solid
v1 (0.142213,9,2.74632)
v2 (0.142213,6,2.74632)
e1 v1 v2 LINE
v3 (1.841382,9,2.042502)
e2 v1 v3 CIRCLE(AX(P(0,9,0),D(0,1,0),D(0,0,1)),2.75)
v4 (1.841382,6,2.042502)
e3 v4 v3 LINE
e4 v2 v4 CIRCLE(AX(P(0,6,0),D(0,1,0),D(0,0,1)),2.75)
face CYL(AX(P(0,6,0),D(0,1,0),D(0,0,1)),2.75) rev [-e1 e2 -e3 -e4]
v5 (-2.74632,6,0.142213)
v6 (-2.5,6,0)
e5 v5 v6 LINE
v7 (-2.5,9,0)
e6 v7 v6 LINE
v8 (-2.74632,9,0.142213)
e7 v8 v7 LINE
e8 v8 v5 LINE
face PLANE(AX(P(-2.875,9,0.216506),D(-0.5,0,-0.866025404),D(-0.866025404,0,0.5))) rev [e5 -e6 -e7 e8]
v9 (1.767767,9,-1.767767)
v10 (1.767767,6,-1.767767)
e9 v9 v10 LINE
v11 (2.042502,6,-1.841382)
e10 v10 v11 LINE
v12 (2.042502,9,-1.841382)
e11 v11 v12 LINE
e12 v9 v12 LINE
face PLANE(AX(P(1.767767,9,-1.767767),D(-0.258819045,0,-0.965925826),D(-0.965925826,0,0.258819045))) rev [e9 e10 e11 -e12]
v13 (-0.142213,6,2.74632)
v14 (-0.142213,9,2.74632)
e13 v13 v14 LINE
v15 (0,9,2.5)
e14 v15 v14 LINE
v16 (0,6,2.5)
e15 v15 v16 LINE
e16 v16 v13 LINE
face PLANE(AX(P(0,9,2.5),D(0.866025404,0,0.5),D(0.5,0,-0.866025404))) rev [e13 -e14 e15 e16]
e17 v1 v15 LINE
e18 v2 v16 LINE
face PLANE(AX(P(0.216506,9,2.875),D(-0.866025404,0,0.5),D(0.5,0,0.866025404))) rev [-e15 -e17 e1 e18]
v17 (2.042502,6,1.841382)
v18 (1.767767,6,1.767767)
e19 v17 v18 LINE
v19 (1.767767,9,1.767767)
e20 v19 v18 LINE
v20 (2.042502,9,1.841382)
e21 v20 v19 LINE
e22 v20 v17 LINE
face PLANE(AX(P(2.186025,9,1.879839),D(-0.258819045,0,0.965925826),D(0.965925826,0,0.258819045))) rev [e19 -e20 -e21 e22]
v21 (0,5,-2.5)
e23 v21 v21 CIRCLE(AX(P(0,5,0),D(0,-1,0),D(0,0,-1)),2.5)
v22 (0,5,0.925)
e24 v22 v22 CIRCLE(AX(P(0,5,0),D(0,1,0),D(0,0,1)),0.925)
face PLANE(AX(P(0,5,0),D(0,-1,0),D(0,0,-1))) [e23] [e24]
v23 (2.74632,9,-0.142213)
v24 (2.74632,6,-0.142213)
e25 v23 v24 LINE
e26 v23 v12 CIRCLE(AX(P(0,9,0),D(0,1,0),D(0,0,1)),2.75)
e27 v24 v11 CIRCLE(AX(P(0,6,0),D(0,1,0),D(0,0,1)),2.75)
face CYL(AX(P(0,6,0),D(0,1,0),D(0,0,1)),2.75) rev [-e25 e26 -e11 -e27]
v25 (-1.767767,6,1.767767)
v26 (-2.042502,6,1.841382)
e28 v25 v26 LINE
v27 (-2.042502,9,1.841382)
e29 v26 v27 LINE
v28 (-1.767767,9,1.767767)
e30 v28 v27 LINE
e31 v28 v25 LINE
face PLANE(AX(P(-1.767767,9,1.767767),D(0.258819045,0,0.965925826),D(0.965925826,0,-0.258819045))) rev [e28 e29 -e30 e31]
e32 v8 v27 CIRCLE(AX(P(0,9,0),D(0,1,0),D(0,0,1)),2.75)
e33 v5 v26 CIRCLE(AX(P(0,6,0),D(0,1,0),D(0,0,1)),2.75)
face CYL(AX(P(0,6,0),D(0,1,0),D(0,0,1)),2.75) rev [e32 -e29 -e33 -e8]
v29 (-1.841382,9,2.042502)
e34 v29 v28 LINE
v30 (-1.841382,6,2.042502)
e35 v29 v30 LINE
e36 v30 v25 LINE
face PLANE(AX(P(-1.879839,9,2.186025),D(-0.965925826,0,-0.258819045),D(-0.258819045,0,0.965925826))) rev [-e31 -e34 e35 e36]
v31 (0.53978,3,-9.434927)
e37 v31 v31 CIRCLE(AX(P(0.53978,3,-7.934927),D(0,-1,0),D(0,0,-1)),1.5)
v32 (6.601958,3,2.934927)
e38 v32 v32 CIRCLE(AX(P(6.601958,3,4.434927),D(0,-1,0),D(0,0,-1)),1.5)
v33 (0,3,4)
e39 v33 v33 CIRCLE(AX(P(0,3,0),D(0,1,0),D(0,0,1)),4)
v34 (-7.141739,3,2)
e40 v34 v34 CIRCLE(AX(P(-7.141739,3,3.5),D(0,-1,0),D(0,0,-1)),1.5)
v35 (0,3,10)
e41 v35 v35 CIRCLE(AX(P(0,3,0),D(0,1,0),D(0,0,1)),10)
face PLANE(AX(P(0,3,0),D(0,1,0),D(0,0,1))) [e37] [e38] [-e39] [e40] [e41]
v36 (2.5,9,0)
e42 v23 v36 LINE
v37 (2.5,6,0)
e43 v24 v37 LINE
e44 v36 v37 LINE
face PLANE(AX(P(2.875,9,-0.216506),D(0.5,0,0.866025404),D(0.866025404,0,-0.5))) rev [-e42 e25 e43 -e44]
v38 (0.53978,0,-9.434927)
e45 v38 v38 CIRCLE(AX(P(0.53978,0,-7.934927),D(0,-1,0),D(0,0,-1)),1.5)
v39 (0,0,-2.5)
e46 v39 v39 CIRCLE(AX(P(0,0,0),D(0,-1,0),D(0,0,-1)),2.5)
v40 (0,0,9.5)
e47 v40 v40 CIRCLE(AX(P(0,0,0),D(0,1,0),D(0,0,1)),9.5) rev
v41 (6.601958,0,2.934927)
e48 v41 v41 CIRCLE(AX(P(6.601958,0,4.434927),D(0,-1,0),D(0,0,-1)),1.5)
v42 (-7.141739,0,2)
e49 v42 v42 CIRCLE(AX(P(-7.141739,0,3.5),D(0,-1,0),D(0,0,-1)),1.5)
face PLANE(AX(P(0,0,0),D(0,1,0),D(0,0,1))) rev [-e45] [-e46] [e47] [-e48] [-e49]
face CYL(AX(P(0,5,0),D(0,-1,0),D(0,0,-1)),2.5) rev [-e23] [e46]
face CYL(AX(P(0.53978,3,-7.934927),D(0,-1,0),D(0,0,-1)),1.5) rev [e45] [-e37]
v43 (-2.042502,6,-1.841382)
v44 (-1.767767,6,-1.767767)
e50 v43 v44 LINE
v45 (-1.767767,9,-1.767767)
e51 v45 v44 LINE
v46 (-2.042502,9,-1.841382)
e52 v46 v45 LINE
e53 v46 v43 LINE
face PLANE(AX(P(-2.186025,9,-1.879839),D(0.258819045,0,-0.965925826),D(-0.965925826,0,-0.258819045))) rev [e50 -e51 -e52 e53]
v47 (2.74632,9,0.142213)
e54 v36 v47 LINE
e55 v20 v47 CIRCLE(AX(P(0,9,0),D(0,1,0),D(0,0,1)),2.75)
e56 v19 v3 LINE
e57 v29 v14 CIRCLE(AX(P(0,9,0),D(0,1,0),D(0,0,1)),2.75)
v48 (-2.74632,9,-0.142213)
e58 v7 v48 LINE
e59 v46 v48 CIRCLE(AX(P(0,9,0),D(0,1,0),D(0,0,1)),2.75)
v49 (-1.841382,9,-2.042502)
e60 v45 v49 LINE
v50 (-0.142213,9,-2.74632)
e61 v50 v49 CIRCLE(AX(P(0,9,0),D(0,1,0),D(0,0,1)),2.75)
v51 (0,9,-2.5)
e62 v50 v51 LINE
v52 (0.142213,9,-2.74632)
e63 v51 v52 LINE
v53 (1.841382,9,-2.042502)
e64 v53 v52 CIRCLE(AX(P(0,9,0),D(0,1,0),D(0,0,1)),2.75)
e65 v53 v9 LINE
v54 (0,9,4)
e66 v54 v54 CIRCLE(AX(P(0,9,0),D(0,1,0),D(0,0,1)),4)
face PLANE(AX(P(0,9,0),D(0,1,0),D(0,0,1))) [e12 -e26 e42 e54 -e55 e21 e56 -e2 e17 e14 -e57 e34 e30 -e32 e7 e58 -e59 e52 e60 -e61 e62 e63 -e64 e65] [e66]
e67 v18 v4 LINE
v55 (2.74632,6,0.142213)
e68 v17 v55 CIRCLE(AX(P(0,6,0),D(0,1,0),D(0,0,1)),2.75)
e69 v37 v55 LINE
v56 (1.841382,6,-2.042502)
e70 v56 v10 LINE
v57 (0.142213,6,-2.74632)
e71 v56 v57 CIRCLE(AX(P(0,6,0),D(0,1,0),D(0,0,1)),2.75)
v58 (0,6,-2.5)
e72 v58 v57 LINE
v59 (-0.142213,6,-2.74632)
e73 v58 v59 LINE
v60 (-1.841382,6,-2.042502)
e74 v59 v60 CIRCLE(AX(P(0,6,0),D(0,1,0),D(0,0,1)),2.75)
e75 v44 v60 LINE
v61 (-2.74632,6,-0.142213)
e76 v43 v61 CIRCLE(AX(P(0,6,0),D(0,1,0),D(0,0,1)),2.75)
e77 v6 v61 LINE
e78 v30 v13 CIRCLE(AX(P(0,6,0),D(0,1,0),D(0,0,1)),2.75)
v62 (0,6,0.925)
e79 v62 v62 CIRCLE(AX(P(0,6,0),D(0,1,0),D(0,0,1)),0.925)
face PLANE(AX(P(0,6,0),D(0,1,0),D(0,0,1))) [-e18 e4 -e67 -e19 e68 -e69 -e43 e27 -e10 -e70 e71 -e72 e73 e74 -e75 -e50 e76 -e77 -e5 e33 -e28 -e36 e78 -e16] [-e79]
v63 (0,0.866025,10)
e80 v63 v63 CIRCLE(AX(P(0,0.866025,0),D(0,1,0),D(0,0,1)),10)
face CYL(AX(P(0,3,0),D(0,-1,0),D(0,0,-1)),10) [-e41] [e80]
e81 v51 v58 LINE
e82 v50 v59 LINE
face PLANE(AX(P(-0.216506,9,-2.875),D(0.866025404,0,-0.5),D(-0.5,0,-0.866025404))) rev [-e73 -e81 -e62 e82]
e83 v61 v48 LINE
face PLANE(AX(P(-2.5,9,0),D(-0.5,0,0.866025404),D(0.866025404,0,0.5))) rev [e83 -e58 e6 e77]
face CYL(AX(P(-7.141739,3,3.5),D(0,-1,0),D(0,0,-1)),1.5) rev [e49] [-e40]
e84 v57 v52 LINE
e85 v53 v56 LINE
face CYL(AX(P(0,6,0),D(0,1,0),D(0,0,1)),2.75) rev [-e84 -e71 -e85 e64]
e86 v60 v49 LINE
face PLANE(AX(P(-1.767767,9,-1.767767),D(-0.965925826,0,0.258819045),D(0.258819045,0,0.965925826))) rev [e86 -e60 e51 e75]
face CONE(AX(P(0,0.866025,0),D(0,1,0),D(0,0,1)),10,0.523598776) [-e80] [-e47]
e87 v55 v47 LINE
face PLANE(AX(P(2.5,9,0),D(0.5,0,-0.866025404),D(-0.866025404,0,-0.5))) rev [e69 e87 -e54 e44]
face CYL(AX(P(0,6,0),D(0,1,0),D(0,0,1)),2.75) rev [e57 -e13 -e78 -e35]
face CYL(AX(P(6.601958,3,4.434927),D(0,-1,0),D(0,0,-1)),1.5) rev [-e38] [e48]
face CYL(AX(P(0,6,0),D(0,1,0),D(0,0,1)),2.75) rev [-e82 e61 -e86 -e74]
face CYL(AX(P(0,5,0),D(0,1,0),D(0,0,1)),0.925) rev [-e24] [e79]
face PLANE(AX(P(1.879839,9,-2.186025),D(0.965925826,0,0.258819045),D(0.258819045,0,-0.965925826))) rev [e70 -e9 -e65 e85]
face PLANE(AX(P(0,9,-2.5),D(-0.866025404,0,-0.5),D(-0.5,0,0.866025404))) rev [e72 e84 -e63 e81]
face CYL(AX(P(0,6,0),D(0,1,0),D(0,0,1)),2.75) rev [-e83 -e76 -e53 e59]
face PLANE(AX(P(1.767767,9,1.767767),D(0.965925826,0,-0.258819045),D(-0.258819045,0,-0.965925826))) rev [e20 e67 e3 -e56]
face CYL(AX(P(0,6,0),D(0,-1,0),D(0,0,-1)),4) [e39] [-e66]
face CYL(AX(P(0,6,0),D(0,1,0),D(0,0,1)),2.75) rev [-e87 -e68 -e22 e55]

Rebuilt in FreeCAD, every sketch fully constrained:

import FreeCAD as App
import Part
import Sketcher

V = App.Vector
Q = App.Units.Quantity


def edges_at(feature, points):
    """Names of the edges that pass closest to the given points."""
    edges = feature.Shape.Edges
    near = lambda p: min(range(len(edges)), key=lambda i: edges[i].distToShape(Part.Vertex(*p))[0])
    return sorted({f"Edge{near(p) + 1}" for p in points})

doc = App.newDocument("Part")
params = doc.addObject("Spreadsheet::Sheet", "Params")
for row, (alias, value) in enumerate([
    ("sketch1_diameter", "20 mm"),
    ("pad1_length", "3 mm"),
    ("sketch2_diameter", "8 mm"),
    ("pad2_length", "3 mm"),
    ("sketch3_diameter", "5 mm"),
    ("pocket1_length", "5 mm"),
    ("sketch4_diameter", "3 mm"),
    ("pocket2_length", "3 mm"),
    ("sketch5_diameter", "1.85 mm"),
    ("pocket3_length", "1 mm"),
    ("chamfer_size", "0.5 mm"),
    ("chamfer_size2", "0.866025 mm"),
    ("sketch6_diameter", "8 mm"),
    ("pad3_length", "3 mm"),
    ("sketch7_diameter", "5.5 mm"),
    ("pocket4_length", "3 mm"),
    ("pad4_length", "3 mm"),
], start=1):
    params.set(f"A{row}", alias)
    params.set(f"B{row}", "=" + value)
    params.setAlias(f"B{row}", alias)

body = doc.addObject("PartDesign::Body", "Body")

# Sketch on XZ plane
sketch1 = body.newObject("Sketcher::SketchObject", "Sketch")
sketch1.AttachmentSupport = (doc.getObject("XZ_Plane"), [""])
sketch1.MapMode = "FlatFace"
sketch1.addGeometry(Part.Circle(V(0, 0, 0), V(0, 0, 1), 10), False)
sketch1.addConstraint([
    Sketcher.Constraint("Coincident", 0, 3, -1, 1),
    Sketcher.Constraint("Diameter", 0, Q("20 mm")),
])
sketch1.setExpression("Constraints[1]", "Params.sketch1_diameter")
pad1 = body.newObject("PartDesign::Pad", "Pad")
pad1.Profile = sketch1
pad1.setExpression("Length", "Params.pad1_length")
pad1.Reversed = True

# Sketch on XZ plane
sketch2 = body.newObject("Sketcher::SketchObject", "Sketch001")
sketch2.AttachmentSupport = (doc.getObject("XZ_Plane"), [""])
sketch2.MapMode = "FlatFace"
sketch2.AttachmentOffset = App.Placement(V(0, 0, -3), App.Rotation())
sketch2.addGeometry(Part.Circle(V(0, 0, 0), V(0, 0, 1), 4), False)
sketch2.addConstraint([
    Sketcher.Constraint("Coincident", 0, 3, -1, 1),
    Sketcher.Constraint("Diameter", 0, Q("8 mm")),
])
sketch2.setExpression("Constraints[1]", "Params.sketch2_diameter")
pad2 = body.newObject("PartDesign::Pad", "Pad001")
pad2.Profile = sketch2
pad2.setExpression("Length", "Params.pad2_length")
pad2.Reversed = True

# Sketch on XZ plane
sketch3 = body.newObject("Sketcher::SketchObject", "Sketch002")
sketch3.AttachmentSupport = (doc.getObject("XZ_Plane"), [""])
sketch3.MapMode = "FlatFace"
sketch3.addGeometry(Part.Circle(V(0, 0, 0), V(0, 0, 1), 2.5), False)
sketch3.addConstraint([
    Sketcher.Constraint("Coincident", 0, 3, -1, 1),
    Sketcher.Constraint("Diameter", 0, Q("5 mm")),
])
sketch3.setExpression("Constraints[1]", "Params.sketch3_diameter")
pocket1 = body.newObject("PartDesign::Pocket", "Pocket")
pocket1.Profile = sketch3
pocket1.setExpression("Length", "Params.pocket1_length")

# Sketch on XZ plane
sketch4 = body.newObject("Sketcher::SketchObject", "Sketch003")
sketch4.AttachmentSupport = (doc.getObject("XZ_Plane"), [""])
sketch4.MapMode = "FlatFace"
sketch4.addGeometry([
    Part.Circle(V(-7.1, 3.5, 0), V(0, 0, 1), 1.5),
    Part.Circle(V(6.6, 4.4, 0), V(0, 0, 1), 1.5),
    Part.Circle(V(0.5, -7.9, 0), V(0, 0, 1), 1.5),
], False)
sketch4.addConstraint([
    Sketcher.Constraint("Equal", 0, 1),
    Sketcher.Constraint("Equal", 1, 2),
    Sketcher.Constraint("Diameter", 0, Q("3 mm")),
    Sketcher.Constraint("DistanceY", -1, 1, 0, 3, Q("3.5 mm")),
    Sketcher.Constraint("DistanceX", 0, 3, -1, 1, Q("7.141739 mm")),
    Sketcher.Constraint("DistanceX", -1, 1, 1, 3, Q("6.601958 mm")),
    Sketcher.Constraint("DistanceX", -1, 1, 2, 3, Q("0.53978 mm")),
    Sketcher.Constraint("DistanceY", -1, 1, 1, 3, Q("4.434927 mm")),
    Sketcher.Constraint("DistanceY", 2, 3, -1, 1, Q("7.934927 mm")),
])
sketch4.setExpression("Constraints[2]", "Params.sketch4_diameter")
pocket2 = body.newObject("PartDesign::Pocket", "Pocket001")
pocket2.Profile = sketch4
pocket2.setExpression("Length", "Params.pocket2_length")

# Sketch on XZ plane
sketch5 = body.newObject("Sketcher::SketchObject", "Sketch004")
sketch5.AttachmentSupport = (doc.getObject("XZ_Plane"), [""])
sketch5.MapMode = "FlatFace"
sketch5.AttachmentOffset = App.Placement(V(0, 0, -6), App.Rotation())
sketch5.addGeometry(Part.Circle(V(0, 0, 0), V(0, 0, 1), 0.9), False)
sketch5.addConstraint([
    Sketcher.Constraint("Coincident", 0, 3, -1, 1),
    Sketcher.Constraint("Diameter", 0, Q("1.85 mm")),
])
sketch5.setExpression("Constraints[1]", "Params.sketch5_diameter")
pocket3 = body.newObject("PartDesign::Pocket", "Pocket002")
pocket3.Profile = sketch5
pocket3.setExpression("Length", "Params.pocket3_length")
pocket3.Reversed = True
doc.recompute()

chamfer = body.newObject("PartDesign::Chamfer", "Chamfer")
chamfer.Base = (pocket3, edges_at(pocket3, [(0, 0, -10)]))
chamfer.ChamferType = "Two distances"
chamfer.setExpression("Size", "Params.chamfer_size")
chamfer.setExpression("Size2", "Params.chamfer_size2")
chamfer.FlipDirection = True

# Sketch on XZ plane
sketch6 = body.newObject("Sketcher::SketchObject", "Sketch005")
sketch6.AttachmentSupport = (doc.getObject("XZ_Plane"), [""])
sketch6.MapMode = "FlatFace"
sketch6.AttachmentOffset = App.Placement(V(0, 0, -6), App.Rotation())
sketch6.addGeometry(Part.Circle(V(0, 0, 0), V(0, 0, 1), 4), False)
sketch6.addConstraint([
    Sketcher.Constraint("Coincident", 0, 3, -1, 1),
    Sketcher.Constraint("Diameter", 0, Q("8 mm")),
])
sketch6.setExpression("Constraints[1]", "Params.sketch6_diameter")
pad3 = body.newObject("PartDesign::Pad", "Pad002")
pad3.Profile = sketch6
pad3.setExpression("Length", "Params.pad3_length")
pad3.Reversed = True

# Sketch on XZ plane
sketch7 = body.newObject("Sketcher::SketchObject", "Sketch006")
sketch7.AttachmentSupport = (doc.getObject("XZ_Plane"), [""])
sketch7.MapMode = "FlatFace"
sketch7.AttachmentOffset = App.Placement(V(0, 0, -9), App.Rotation())
sketch7.addGeometry(Part.Circle(V(0, 0, 0), V(0, 0, 1), 2.8), False)
sketch7.addConstraint([
    Sketcher.Constraint("Coincident", 0, 3, -1, 1),
    Sketcher.Constraint("Diameter", 0, Q("5.5 mm")),
])
sketch7.setExpression("Constraints[1]", "Params.sketch7_diameter")
pocket4 = body.newObject("PartDesign::Pocket", "Pocket003")
pocket4.Profile = sketch7
pocket4.setExpression("Length", "Params.pocket4_length")
pocket4.Reversed = True

# Sketch on XZ plane
sketch8 = body.newObject("Sketcher::SketchObject", "Sketch007")
sketch8.AttachmentSupport = (doc.getObject("XZ_Plane"), [""])
sketch8.MapMode = "FlatFace"
sketch8.AttachmentOffset = App.Placement(V(0, 0, -6), App.Rotation())
sketch8.addGeometry([
    Part.LineSegment(V(0, -2.5, 0), V(0.22, -2.88, 0)),  # 0
    Part.LineSegment(V(0.22, -2.88, 0), V(-0.22, -2.88, 0)),  # 1
    Part.LineSegment(V(-0.22, -2.88, 0), V(0, -2.5, 0)),  # 2
    Part.LineSegment(V(1.77, -1.77, 0), V(2.19, -1.88, 0)),  # 3
    Part.LineSegment(V(2.19, -1.88, 0), V(1.88, -2.19, 0)),  # 4
    Part.LineSegment(V(1.88, -2.19, 0), V(1.77, -1.77, 0)),  # 5
    Part.LineSegment(V(2.5, 0, 0), V(2.88, 0.22, 0)),  # 6
    Part.LineSegment(V(2.88, 0.22, 0), V(2.88, -0.22, 0)),  # 7
    Part.LineSegment(V(2.88, -0.22, 0), V(2.5, 0, 0)),  # 8
    Part.LineSegment(V(1.77, 1.77, 0), V(1.88, 2.19, 0)),  # 9
    Part.LineSegment(V(1.88, 2.19, 0), V(2.19, 1.88, 0)),  # 10
    Part.LineSegment(V(2.19, 1.88, 0), V(1.77, 1.77, 0)),  # 11
    Part.LineSegment(V(0, 2.5, 0), V(-0.22, 2.88, 0)),  # 12
    Part.LineSegment(V(-0.22, 2.88, 0), V(0.22, 2.88, 0)),  # 13
    Part.LineSegment(V(0.22, 2.88, 0), V(0, 2.5, 0)),  # 14
    Part.LineSegment(V(-1.77, 1.77, 0), V(-2.19, 1.88, 0)),  # 15
    Part.LineSegment(V(-2.19, 1.88, 0), V(-1.88, 2.19, 0)),  # 16
    Part.LineSegment(V(-1.88, 2.19, 0), V(-1.77, 1.77, 0)),  # 17
    Part.LineSegment(V(-2.5, 0, 0), V(-2.88, -0.22, 0)),  # 18
    Part.LineSegment(V(-2.88, -0.22, 0), V(-2.88, 0.22, 0)),  # 19
    Part.LineSegment(V(-2.88, 0.22, 0), V(-2.5, 0, 0)),  # 20
    Part.LineSegment(V(-1.77, -1.77, 0), V(-1.88, -2.19, 0)),  # 21
    Part.LineSegment(V(-1.88, -2.19, 0), V(-2.19, -1.88, 0)),  # 22
    Part.LineSegment(V(-2.19, -1.88, 0), V(-1.77, -1.77, 0)),  # 23
], False)
sketch8.addConstraint([
    Sketcher.Constraint("Coincident", 0, 2, 1, 1),
    Sketcher.Constraint("Coincident", 1, 2, 2, 1),
    Sketcher.Constraint("Coincident", 2, 2, 0, 1),
    Sketcher.Constraint("Coincident", 3, 2, 4, 1),
    Sketcher.Constraint("Coincident", 4, 2, 5, 1),
    Sketcher.Constraint("Coincident", 5, 2, 3, 1),
    Sketcher.Constraint("Coincident", 6, 2, 7, 1),
    Sketcher.Constraint("Coincident", 7, 2, 8, 1),
    Sketcher.Constraint("Coincident", 8, 2, 6, 1),
    Sketcher.Constraint("Coincident", 9, 2, 10, 1),
    Sketcher.Constraint("Coincident", 10, 2, 11, 1),
    Sketcher.Constraint("Coincident", 11, 2, 9, 1),
    Sketcher.Constraint("Coincident", 12, 2, 13, 1),
    Sketcher.Constraint("Coincident", 13, 2, 14, 1),
    Sketcher.Constraint("Coincident", 14, 2, 12, 1),
    Sketcher.Constraint("Coincident", 15, 2, 16, 1),
    Sketcher.Constraint("Coincident", 16, 2, 17, 1),
    Sketcher.Constraint("Coincident", 17, 2, 15, 1),
    Sketcher.Constraint("Coincident", 18, 2, 19, 1),
    Sketcher.Constraint("Coincident", 19, 2, 20, 1),
    Sketcher.Constraint("Coincident", 20, 2, 18, 1),
    Sketcher.Constraint("Coincident", 21, 2, 22, 1),
    Sketcher.Constraint("Coincident", 22, 2, 23, 1),
    Sketcher.Constraint("Coincident", 23, 2, 21, 1),
    Sketcher.Constraint("Horizontal", 1),
    Sketcher.Constraint("Vertical", 7),
    Sketcher.Constraint("Horizontal", 13),
    Sketcher.Constraint("Vertical", 19),
    Sketcher.Constraint("Symmetric", 0, 2, 12, 2, -1, 1),
    Sketcher.Constraint("Symmetric", 2, 2, 14, 2, -1, 1),
    Sketcher.Constraint("Symmetric", 3, 2, 15, 2, -1, 1),
    Sketcher.Constraint("Symmetric", 4, 2, 16, 2, -1, 1),
    Sketcher.Constraint("Symmetric", 5, 2, 17, 2, -1, 1),
    Sketcher.Constraint("Symmetric", 6, 2, 18, 2, -1, 1),
    Sketcher.Constraint("Symmetric", 8, 2, 20, 2, -1, 1),
    Sketcher.Constraint("Symmetric", 9, 2, 21, 2, -1, 1),
    Sketcher.Constraint("Symmetric", 10, 2, 22, 2, -1, 1),
    Sketcher.Constraint("Symmetric", 11, 2, 23, 2, -1, 1),
    Sketcher.Constraint("Symmetric", 10, 2, 15, 2, -2),
    Sketcher.Constraint("Symmetric", 9, 2, 16, 2, -2),
    Sketcher.Constraint("Symmetric", 11, 2, 17, 2, -2),
    Sketcher.Constraint("PointOnObject", 2, 2, -2),
    Sketcher.Constraint("PointOnObject", 8, 2, -1),
    Sketcher.Constraint("Perpendicular", 0, 6),
    Sketcher.Constraint("Perpendicular", 2, 8),
    Sketcher.Constraint("Perpendicular", 3, 9),
    Sketcher.Constraint("Perpendicular", 4, 10),
    Sketcher.Constraint("Perpendicular", 8, 14),
    Sketcher.Constraint("Perpendicular", 14, 20),
    Sketcher.Constraint("Horizontal", 7, 2, 18, 2),
    Sketcher.Constraint("Equal", 13, 7),
    Sketcher.Constraint("Equal", 2, 3),
    Sketcher.Constraint("Equal", 3, 4),
    Sketcher.Constraint("Angle", 0, Q("-60 deg")),
    Sketcher.Constraint("DistanceY", 2, 2, -1, 1, Q("2.5 mm")),
    Sketcher.Constraint("DistanceX", -1, 1, 8, 2, Q("2.5 mm")),
    Sketcher.Constraint("DistanceY", 0, 2, -1, 1, Q("2.875 mm")),
    Sketcher.Constraint("DistanceY", 3, 2, -1, 1, Q("1.879839 mm")),
    Sketcher.Constraint("DistanceX", -1, 1, 4, 2, Q("1.879839 mm")),
])
pad4 = body.newObject("PartDesign::Pad", "Pad003")
pad4.Profile = sketch8
pad4.setExpression("Length", "Params.pad4_length")
pad4.Reversed = True

doc.recompute()
